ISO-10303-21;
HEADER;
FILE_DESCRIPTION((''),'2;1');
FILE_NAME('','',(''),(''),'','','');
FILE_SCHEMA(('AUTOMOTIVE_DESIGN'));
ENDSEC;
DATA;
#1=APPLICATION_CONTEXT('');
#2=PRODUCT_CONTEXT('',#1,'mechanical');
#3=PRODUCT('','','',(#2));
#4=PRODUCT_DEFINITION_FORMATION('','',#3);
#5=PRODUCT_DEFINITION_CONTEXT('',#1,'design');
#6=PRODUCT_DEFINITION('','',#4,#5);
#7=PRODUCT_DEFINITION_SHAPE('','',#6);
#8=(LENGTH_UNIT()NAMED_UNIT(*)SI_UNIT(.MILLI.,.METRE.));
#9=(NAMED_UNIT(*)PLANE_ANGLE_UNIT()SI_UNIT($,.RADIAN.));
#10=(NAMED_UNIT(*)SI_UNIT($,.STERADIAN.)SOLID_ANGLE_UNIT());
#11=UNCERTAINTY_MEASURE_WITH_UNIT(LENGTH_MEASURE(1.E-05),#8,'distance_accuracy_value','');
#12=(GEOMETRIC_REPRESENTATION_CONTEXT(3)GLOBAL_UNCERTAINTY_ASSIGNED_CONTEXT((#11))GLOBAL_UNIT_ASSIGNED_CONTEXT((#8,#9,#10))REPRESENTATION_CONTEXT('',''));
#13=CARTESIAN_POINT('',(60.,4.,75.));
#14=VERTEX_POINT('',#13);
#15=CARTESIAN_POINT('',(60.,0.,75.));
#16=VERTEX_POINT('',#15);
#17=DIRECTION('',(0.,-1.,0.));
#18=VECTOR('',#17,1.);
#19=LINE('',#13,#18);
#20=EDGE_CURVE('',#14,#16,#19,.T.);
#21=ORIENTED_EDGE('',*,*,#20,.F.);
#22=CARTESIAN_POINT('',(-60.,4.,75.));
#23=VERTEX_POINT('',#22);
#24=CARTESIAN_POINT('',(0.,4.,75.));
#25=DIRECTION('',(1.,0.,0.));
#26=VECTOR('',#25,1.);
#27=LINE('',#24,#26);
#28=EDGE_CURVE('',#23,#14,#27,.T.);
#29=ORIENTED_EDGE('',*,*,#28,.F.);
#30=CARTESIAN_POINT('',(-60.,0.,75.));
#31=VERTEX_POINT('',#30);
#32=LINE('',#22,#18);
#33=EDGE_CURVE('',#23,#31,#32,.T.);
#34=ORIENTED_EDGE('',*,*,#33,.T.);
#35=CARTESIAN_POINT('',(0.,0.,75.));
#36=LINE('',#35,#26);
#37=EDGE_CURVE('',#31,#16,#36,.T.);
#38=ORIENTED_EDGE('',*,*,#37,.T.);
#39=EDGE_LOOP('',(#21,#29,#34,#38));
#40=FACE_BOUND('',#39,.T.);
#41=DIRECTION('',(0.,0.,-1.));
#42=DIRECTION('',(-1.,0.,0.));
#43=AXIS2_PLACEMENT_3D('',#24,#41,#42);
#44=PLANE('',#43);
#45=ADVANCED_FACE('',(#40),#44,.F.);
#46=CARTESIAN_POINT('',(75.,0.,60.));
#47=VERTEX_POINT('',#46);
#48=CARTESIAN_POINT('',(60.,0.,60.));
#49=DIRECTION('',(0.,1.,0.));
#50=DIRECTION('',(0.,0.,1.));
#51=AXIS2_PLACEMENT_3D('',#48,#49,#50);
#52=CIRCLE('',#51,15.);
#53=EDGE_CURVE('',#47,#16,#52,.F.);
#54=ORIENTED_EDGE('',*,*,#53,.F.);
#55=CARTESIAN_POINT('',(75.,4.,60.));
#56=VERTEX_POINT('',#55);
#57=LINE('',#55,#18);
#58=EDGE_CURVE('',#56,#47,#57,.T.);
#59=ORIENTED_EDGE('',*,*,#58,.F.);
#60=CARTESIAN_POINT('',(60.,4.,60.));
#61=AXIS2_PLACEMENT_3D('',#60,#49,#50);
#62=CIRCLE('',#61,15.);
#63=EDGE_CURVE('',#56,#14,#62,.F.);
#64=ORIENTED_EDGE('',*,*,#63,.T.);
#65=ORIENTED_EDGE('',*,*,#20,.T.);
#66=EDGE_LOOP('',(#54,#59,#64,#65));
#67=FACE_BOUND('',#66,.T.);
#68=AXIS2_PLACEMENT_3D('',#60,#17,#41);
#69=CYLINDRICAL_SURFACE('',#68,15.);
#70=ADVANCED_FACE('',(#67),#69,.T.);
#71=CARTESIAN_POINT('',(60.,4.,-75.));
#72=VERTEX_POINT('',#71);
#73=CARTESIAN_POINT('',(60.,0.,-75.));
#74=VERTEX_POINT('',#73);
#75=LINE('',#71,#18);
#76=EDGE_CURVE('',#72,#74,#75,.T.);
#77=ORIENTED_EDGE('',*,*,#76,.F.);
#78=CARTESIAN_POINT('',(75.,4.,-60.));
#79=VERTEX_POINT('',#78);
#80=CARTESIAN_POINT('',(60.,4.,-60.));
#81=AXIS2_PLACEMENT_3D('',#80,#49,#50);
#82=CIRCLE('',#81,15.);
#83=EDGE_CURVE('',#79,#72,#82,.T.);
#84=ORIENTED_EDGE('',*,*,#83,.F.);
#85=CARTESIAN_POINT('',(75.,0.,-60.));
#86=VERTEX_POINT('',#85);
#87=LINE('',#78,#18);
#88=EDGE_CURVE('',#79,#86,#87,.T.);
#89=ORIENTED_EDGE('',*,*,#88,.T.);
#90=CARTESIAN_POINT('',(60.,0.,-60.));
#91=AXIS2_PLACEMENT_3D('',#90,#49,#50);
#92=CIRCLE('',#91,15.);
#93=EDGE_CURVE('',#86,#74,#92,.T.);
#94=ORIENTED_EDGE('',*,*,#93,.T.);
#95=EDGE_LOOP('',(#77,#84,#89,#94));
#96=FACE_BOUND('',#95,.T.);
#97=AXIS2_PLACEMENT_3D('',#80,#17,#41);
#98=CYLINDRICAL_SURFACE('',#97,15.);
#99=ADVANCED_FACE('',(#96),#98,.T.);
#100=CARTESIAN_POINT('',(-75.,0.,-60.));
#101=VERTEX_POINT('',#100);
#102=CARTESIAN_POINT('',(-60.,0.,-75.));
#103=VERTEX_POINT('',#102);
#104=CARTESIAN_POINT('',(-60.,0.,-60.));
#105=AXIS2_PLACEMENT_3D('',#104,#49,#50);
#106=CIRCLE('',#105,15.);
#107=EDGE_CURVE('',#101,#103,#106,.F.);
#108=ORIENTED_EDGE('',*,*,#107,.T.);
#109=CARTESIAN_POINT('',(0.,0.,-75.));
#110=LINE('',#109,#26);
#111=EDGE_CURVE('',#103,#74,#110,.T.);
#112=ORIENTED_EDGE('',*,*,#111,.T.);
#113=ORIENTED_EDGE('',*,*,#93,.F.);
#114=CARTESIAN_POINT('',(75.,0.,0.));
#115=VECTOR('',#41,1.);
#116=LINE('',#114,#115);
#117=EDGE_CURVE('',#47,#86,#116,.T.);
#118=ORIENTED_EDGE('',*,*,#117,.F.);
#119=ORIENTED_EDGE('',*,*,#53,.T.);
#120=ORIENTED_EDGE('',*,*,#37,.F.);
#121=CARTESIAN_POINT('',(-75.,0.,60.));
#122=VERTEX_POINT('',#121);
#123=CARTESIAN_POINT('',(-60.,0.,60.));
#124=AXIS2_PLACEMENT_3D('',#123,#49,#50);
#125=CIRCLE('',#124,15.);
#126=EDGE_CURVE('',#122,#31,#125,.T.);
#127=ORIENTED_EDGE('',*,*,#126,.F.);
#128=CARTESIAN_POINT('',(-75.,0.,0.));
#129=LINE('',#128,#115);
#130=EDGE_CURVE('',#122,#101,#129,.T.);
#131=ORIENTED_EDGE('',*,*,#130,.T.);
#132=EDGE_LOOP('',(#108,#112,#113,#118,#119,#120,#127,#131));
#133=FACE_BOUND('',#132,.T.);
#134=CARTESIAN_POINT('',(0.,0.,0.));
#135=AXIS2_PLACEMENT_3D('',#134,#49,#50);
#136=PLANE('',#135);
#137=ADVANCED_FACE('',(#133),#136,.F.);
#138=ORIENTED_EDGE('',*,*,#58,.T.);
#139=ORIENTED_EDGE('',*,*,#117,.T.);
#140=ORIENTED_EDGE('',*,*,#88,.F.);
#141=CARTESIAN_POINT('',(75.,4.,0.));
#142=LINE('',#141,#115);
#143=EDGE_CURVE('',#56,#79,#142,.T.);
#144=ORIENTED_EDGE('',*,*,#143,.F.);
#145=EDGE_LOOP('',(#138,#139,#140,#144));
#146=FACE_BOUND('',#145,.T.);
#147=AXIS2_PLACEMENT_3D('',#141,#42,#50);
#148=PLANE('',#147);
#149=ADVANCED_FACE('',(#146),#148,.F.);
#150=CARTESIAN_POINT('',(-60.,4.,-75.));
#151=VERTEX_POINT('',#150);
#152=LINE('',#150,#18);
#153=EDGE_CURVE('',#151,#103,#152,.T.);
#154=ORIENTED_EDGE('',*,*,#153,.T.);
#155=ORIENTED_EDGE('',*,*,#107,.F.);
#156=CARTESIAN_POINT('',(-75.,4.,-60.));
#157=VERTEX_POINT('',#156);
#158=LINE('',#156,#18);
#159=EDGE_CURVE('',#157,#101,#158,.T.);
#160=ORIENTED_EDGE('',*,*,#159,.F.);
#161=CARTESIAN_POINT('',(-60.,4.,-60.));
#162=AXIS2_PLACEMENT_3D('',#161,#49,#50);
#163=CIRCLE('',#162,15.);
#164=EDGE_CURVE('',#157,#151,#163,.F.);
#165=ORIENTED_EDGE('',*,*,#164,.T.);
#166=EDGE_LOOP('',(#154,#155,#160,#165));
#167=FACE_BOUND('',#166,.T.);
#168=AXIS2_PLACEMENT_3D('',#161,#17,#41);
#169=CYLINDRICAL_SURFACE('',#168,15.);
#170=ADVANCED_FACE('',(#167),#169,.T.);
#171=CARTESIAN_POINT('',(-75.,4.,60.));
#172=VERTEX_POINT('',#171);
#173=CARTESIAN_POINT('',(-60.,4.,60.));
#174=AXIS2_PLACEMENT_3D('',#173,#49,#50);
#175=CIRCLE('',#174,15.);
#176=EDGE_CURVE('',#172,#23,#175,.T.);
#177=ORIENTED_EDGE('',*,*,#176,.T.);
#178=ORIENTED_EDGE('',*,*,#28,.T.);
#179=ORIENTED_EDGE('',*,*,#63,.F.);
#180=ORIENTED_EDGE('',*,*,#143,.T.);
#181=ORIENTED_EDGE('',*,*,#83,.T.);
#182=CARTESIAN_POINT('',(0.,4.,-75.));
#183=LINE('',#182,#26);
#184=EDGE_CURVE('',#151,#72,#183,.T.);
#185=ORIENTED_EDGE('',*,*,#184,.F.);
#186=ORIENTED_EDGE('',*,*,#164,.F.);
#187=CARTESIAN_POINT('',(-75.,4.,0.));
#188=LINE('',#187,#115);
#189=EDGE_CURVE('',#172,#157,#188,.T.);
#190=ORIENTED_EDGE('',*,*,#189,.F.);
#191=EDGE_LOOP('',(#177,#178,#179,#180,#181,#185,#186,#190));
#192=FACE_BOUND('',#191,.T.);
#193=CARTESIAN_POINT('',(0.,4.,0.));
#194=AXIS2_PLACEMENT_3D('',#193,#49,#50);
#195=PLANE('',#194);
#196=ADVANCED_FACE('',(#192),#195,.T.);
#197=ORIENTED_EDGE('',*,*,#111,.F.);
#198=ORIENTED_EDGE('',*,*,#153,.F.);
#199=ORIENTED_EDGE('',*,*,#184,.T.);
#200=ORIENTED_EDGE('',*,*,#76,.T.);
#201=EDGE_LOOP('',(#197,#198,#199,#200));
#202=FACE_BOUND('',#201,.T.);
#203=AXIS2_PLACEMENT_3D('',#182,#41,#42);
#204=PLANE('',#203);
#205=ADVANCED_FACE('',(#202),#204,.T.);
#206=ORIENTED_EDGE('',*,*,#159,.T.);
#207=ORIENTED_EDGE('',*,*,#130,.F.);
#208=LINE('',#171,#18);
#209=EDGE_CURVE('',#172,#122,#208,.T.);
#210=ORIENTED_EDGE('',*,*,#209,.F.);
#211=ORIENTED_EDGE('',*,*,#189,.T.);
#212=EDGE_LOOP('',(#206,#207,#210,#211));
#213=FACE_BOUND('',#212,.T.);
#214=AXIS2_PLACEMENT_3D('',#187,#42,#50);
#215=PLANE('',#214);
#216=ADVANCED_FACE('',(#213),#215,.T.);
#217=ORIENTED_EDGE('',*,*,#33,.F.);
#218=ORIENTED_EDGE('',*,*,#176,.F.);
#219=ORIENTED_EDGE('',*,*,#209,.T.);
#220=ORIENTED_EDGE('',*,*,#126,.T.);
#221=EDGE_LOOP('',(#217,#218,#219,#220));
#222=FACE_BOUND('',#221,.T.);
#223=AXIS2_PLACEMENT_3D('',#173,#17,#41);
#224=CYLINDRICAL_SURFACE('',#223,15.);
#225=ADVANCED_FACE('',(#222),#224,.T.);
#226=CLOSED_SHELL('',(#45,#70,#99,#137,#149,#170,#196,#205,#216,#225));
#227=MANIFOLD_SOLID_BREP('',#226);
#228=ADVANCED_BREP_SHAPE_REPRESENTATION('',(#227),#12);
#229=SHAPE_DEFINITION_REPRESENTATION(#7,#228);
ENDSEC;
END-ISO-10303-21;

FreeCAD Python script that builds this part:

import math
import FreeCAD as App
import Part
import Sketcher

V = App.Vector

doc = App.newDocument("Part")
body = doc.addObject("PartDesign::Body", "Body")

# Sketch on XZ plane
sketch1 = body.newObject("Sketcher::SketchObject", "Sketch")
sketch1.AttachmentSupport = (doc.getObject("XZ_Plane"), [""])
sketch1.MapMode = "FlatFace"
sketch1.addGeometry([
    Part.ArcOfCircle(Part.Circle(V(-60, 60, 0), V(0, 0, 1), 15), math.radians(90), math.radians(180)),  # 0
    Part.LineSegment(V(-60, 75, 0), V(60, 75, 0)),  # 1
    Part.ArcOfCircle(Part.Circle(V(60, 60, 0), V(0, 0, 1), 15), math.radians(0), math.radians(90)),  # 2
    Part.LineSegment(V(75, 60, 0), V(75, -60, 0)),  # 3
    Part.ArcOfCircle(Part.Circle(V(60, -60, 0), V(0, 0, 1), 15), math.radians(-90), math.radians(0)),  # 4
    Part.LineSegment(V(60, -75, 0), V(-60, -75, 0)),  # 5
    Part.ArcOfCircle(Part.Circle(V(-60, -60, 0), V(0, 0, 1), 15), math.radians(180), math.radians(270)),  # 6
    Part.LineSegment(V(-75, -60, 0), V(-75, 60, 0)),  # 7
], False)
sketch1.addConstraint([
    Sketcher.Constraint("Tangent", 0, 1, 1, 1),
    Sketcher.Constraint("Tangent", 1, 2, 2, 2),
    Sketcher.Constraint("Tangent", 2, 1, 3, 1),
    Sketcher.Constraint("Tangent", 3, 2, 4, 2),
    Sketcher.Constraint("Tangent", 4, 1, 5, 1),
    Sketcher.Constraint("Tangent", 5, 2, 6, 2),
    Sketcher.Constraint("Tangent", 6, 1, 7, 1),
    Sketcher.Constraint("Tangent", 7, 2, 0, 2),
    Sketcher.Constraint("Horizontal", 1),
    Sketcher.Constraint("Vertical", 3),
    Sketcher.Constraint("Horizontal", 5),
    Sketcher.Constraint("Vertical", 7),
    Sketcher.Constraint("Equal", 0, 2),
    Sketcher.Constraint("Equal", 2, 4),
    Sketcher.Constraint("Equal", 4, 6),
    Sketcher.Constraint("Symmetric", 0, 3, 4, 3, -1, 1),
    Sketcher.Constraint("Equal", 5, 3),
    Sketcher.Constraint("Radius", 0, 15.0),
    Sketcher.Constraint("DistanceX", 1, 1, 1, 2, 120.0),
])
pad1 = body.newObject("PartDesign::Pad", "Pad")
pad1.Profile = sketch1
pad1.Length = 4
pad1.Reversed = True

doc.recompute()
